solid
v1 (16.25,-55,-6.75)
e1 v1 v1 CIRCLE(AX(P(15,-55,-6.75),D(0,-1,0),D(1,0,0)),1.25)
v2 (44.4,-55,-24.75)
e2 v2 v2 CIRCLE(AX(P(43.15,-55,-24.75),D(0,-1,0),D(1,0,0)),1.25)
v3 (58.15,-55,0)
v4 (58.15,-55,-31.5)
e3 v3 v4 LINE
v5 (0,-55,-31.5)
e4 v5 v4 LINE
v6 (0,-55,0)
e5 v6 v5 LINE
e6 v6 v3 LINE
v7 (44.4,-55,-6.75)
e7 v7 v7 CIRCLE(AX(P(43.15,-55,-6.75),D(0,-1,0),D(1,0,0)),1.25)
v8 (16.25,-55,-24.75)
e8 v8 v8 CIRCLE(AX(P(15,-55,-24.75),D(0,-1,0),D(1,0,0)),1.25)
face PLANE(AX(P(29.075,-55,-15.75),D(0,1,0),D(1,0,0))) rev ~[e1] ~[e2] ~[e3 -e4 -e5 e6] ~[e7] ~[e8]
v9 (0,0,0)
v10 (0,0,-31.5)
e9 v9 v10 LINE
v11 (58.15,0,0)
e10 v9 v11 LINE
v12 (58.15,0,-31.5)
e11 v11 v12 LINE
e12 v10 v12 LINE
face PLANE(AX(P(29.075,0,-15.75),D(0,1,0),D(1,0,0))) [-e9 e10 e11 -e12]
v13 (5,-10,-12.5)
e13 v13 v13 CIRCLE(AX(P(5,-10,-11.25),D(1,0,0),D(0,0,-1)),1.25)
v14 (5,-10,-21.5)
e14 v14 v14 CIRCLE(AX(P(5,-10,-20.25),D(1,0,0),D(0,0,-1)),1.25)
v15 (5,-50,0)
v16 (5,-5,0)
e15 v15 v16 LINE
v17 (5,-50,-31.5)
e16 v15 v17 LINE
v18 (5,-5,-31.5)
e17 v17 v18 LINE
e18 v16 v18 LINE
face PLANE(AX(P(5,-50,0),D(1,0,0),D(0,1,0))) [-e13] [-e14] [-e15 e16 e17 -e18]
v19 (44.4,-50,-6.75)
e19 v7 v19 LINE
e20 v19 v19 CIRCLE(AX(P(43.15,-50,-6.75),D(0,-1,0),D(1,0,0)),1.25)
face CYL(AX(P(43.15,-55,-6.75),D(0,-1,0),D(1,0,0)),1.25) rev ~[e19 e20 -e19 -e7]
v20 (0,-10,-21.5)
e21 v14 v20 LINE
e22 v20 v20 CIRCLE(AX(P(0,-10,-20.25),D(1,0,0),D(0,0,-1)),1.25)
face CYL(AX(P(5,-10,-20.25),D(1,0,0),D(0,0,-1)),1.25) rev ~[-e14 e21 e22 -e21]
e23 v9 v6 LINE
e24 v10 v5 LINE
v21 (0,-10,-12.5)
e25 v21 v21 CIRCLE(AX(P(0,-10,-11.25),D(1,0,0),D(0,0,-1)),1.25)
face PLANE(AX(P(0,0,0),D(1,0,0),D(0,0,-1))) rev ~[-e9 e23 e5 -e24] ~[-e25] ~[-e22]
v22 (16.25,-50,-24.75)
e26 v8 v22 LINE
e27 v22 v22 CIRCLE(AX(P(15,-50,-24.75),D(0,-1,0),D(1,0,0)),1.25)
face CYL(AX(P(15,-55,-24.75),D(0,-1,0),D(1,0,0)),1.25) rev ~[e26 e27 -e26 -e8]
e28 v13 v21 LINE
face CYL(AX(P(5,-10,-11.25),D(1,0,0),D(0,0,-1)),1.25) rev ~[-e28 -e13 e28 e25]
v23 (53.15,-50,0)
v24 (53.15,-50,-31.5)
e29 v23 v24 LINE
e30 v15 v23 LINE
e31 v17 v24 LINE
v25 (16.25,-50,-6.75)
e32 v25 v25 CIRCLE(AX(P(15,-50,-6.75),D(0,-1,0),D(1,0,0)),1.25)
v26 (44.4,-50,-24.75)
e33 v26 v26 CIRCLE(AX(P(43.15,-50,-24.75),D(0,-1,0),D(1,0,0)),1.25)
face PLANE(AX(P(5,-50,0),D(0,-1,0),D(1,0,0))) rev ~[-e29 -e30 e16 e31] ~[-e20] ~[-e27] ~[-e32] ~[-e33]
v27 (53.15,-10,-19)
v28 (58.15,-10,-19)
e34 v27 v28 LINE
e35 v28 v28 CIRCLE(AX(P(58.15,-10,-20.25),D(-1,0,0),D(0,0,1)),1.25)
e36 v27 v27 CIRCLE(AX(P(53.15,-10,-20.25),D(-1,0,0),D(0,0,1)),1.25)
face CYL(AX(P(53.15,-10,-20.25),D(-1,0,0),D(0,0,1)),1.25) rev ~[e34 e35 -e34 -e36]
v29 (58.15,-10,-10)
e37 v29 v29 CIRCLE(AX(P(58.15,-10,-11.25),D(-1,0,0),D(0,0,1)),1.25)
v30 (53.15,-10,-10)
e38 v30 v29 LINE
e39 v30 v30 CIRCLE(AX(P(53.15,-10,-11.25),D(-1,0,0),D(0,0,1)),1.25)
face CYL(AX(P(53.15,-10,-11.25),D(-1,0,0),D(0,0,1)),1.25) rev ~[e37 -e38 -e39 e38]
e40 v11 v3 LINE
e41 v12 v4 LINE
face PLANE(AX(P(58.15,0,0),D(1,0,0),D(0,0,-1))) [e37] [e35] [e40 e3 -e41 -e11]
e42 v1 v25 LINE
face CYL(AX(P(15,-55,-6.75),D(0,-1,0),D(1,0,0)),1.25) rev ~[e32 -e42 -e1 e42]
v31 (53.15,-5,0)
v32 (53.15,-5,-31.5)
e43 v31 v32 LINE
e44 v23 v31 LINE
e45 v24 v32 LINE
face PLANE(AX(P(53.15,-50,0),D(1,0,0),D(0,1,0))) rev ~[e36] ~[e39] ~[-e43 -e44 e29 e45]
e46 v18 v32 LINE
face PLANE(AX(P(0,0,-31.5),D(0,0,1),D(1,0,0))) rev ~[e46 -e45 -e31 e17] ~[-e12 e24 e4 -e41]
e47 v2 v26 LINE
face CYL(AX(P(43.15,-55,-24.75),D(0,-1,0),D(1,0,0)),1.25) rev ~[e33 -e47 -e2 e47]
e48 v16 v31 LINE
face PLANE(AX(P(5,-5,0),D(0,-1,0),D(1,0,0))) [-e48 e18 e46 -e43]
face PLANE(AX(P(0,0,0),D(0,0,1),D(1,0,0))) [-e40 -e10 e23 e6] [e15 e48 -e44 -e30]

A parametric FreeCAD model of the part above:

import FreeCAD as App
import Part
import Sketcher

doc = App.newDocument("Part")
body = doc.addObject("PartDesign::Body", "Body")

# Sketch on XZ plane
sketch1 = body.newObject("Sketcher::SketchObject", "Sketch")
sketch1.AttachmentSupport = (doc.getObject("XZ_Plane"), [""])
sketch1.MapMode = "FlatFace"
sketch1.addGeometry(Part.LineSegment(App.Vector(0, -32, 0), App.Vector(0, 0, 0)), False)
sketch1.addGeometry(Part.LineSegment(App.Vector(0, 0, 0), App.Vector(58, 0, 0)), False)
sketch1.addGeometry(Part.LineSegment(App.Vector(58, 0, 0), App.Vector(58, -32, 0)), False)
sketch1.addGeometry(Part.LineSegment(App.Vector(58, -32, 0), App.Vector(0, -32, 0)), False)
sketch1.addConstraint(Sketcher.Constraint("Coincident", 0, 2, 1, 1))
sketch1.addConstraint(Sketcher.Constraint("Coincident", 1, 2, 2, 1))
sketch1.addConstraint(Sketcher.Constraint("Coincident", 2, 2, 3, 1))
sketch1.addConstraint(Sketcher.Constraint("Coincident", 3, 2, 0, 1))
sketch1.addConstraint(Sketcher.Constraint("Vertical", 0))
sketch1.addConstraint(Sketcher.Constraint("Horizontal", 1))
sketch1.addConstraint(Sketcher.Constraint("Vertical", 2))
sketch1.addConstraint(Sketcher.Constraint("Horizontal", 3))
sketch1.addConstraint(Sketcher.Constraint("Coincident", 0, 2, -1, 1))
sketch1.addConstraint(Sketcher.Constraint("DistanceY", 0, 1, 0, 2, 31.5))
sketch1.addConstraint(Sketcher.Constraint("DistanceX", 1, 1, 1, 2, 58.15))
pad1 = body.newObject("PartDesign::Pad", "Pad")
pad1.Profile = sketch1
pad1.Length = 55

# Sketch on XY plane
sketch2 = body.newObject("Sketcher::SketchObject", "Sketch001")
sketch2.AttachmentSupport = (doc.getObject("XY_Plane"), [""])
sketch2.MapMode = "FlatFace"
sketch2.addGeometry(Part.LineSegment(App.Vector(5, -5, 0), App.Vector(5, -50, 0)), False)
sketch2.addGeometry(Part.LineSegment(App.Vector(5, -50, 0), App.Vector(53, -50, 0)), False)
sketch2.addGeometry(Part.LineSegment(App.Vector(53, -50, 0), App.Vector(53, -5, 0)), False)
sketch2.addGeometry(Part.LineSegment(App.Vector(53, -5, 0), App.Vector(5, -5, 0)), False)
sketch2.addConstraint(Sketcher.Constraint("Coincident", 0, 2, 1, 1))
sketch2.addConstraint(Sketcher.Constraint("Coincident", 1, 2, 2, 1))
sketch2.addConstraint(Sketcher.Constraint("Coincident", 2, 2, 3, 1))
sketch2.addConstraint(Sketcher.Constraint("Coincident", 3, 2, 0, 1))
sketch2.addConstraint(Sketcher.Constraint("Vertical", 0))
sketch2.addConstraint(Sketcher.Constraint("Horizontal", 1))
sketch2.addConstraint(Sketcher.Constraint("Vertical", 2))
sketch2.addConstraint(Sketcher.Constraint("Horizontal", 3))
sketch2.addConstraint(Sketcher.Constraint("DistanceY", 0, 2, 0, 1, 45.0))
sketch2.addConstraint(Sketcher.Constraint("DistanceX", -1, 1, 0, 2, 5.0))
sketch2.addConstraint(Sketcher.Constraint("DistanceY", 0, 2, -1, 1, 50.0))
sketch2.addConstraint(Sketcher.Constraint("DistanceX", 1, 1, 1, 2, 48.15))
pocket1 = body.newObject("PartDesign::Pocket", "Pocket")
pocket1.Profile = sketch2
pocket1.Length = 31.5

# Sketch on XZ plane
sketch3 = body.newObject("Sketcher::SketchObject", "Sketch002")
sketch3.AttachmentSupport = (doc.getObject("XZ_Plane"), [""])
sketch3.MapMode = "FlatFace"
sketch3.AttachmentOffset = App.Placement(App.Vector(0, 0, 55), App.Rotation())
sketch3.addGeometry(Part.Circle(App.Vector(15, -6.8, 0), App.Vector(0, 0, 1), 1.2), False)
sketch3.addGeometry(Part.Circle(App.Vector(15, -24.8, 0), App.Vector(0, 0, 1), 1.2), False)
sketch3.addGeometry(Part.Circle(App.Vector(43.1, -6.8, 0), App.Vector(0, 0, 1), 1.2), False)
sketch3.addGeometry(Part.Circle(App.Vector(43.1, -24.8, 0), App.Vector(0, 0, 1), 1.2), False)
sketch3.addConstraint(Sketcher.Constraint("Equal", 0, 1))
sketch3.addConstraint(Sketcher.Constraint("Equal", 1, 2))
sketch3.addConstraint(Sketcher.Constraint("Equal", 2, 3))
sketch3.addConstraint(Sketcher.Constraint("Horizontal", 0, 3, 2, 3))
sketch3.addConstraint(Sketcher.Constraint("Horizontal", 1, 3, 3, 3))
sketch3.addConstraint(Sketcher.Constraint("Vertical", 0, 3, 1, 3))
sketch3.addConstraint(Sketcher.Constraint("Vertical", 2, 3, 3, 3))
sketch3.addConstraint(Sketcher.Constraint("Diameter", 0, 2.5))
sketch3.addConstraint(Sketcher.Constraint("DistanceX", -1, 1, 0, 3, 15.0))
sketch3.addConstraint(Sketcher.Constraint("DistanceY", 1, 3, 0, 3, 18.0))
sketch3.addConstraint(Sketcher.Constraint("DistanceY", 0, 3, -1, 1, 6.75))
sketch3.addConstraint(Sketcher.Constraint("DistanceX", -1, 1, 2, 3, 43.15))
pocket2 = body.newObject("PartDesign::Pocket", "Pocket001")
pocket2.Profile = sketch3
pocket2.Length = 10

# Sketch on YZ plane
sketch4 = body.newObject("Sketcher::SketchObject", "Sketch003")
sketch4.AttachmentSupport = (doc.getObject("YZ_Plane"), [""])
sketch4.MapMode = "FlatFace"
sketch4.AttachmentOffset = App.Placement(App.Vector(0, 0, 53.15), App.Rotation())
sketch4.addGeometry(Part.Circle(App.Vector(-10, -20.2, 0), App.Vector(0, 0, 1), 1.2), False)
sketch4.addGeometry(Part.Circle(App.Vector(-10, -11.2, 0), App.Vector(0, 0, 1), 1.2), False)
sketch4.addConstraint(Sketcher.Constraint("Equal", 0, 1))
sketch4.addConstraint(Sketcher.Constraint("Vertical", 0, 3, 1, 3))
sketch4.addConstraint(Sketcher.Constraint("Diameter", 0, 2.5))
sketch4.addConstraint(Sketcher.Constraint("DistanceX", 0, 3, -1, 1, 10.0))
sketch4.addConstraint(Sketcher.Constraint("DistanceY", 0, 3, 1, 3, 9.0))
sketch4.addConstraint(Sketcher.Constraint("DistanceY", 0, 3, -1, 1, 20.25))
pocket3 = body.newObject("PartDesign::Pocket", "Pocket002")
pocket3.Profile = sketch4
pocket3.Length = 10
pocket3.Reversed = True

# Sketch on YZ plane
sketch5 = body.newObject("Sketcher::SketchObject", "Sketch004")
sketch5.AttachmentSupport = (doc.getObject("YZ_Plane"), [""])
sketch5.MapMode = "FlatFace"
sketch5.AttachmentOffset = App.Placement(App.Vector(0, 0, 5), App.Rotation())
sketch5.addGeometry(Part.Circle(App.Vector(-10, -11.2, 0), App.Vector(0, 0, 1), 1.2), False)
sketch5.addGeometry(Part.Circle(App.Vector(-10, -20.2, 0), App.Vector(0, 0, 1), 1.2), False)
sketch5.addConstraint(Sketcher.Constraint("Equal", 0, 1))
sketch5.addConstraint(Sketcher.Constraint("Vertical", 0, 3, 1, 3))
sketch5.addConstraint(Sketcher.Constraint("Diameter", 0, 2.5))
sketch5.addConstraint(Sketcher.Constraint("DistanceX", 0, 3, -1, 1, 10.0))
sketch5.addConstraint(Sketcher.Constraint("DistanceY", 1, 3, 0, 3, 9.0))
sketch5.addConstraint(Sketcher.Constraint("DistanceY", 0, 3, -1, 1, 11.25))
pocket4 = body.newObject("PartDesign::Pocket", "Pocket003")
pocket4.Profile = sketch5
pocket4.Length = 10

doc.recompute()
